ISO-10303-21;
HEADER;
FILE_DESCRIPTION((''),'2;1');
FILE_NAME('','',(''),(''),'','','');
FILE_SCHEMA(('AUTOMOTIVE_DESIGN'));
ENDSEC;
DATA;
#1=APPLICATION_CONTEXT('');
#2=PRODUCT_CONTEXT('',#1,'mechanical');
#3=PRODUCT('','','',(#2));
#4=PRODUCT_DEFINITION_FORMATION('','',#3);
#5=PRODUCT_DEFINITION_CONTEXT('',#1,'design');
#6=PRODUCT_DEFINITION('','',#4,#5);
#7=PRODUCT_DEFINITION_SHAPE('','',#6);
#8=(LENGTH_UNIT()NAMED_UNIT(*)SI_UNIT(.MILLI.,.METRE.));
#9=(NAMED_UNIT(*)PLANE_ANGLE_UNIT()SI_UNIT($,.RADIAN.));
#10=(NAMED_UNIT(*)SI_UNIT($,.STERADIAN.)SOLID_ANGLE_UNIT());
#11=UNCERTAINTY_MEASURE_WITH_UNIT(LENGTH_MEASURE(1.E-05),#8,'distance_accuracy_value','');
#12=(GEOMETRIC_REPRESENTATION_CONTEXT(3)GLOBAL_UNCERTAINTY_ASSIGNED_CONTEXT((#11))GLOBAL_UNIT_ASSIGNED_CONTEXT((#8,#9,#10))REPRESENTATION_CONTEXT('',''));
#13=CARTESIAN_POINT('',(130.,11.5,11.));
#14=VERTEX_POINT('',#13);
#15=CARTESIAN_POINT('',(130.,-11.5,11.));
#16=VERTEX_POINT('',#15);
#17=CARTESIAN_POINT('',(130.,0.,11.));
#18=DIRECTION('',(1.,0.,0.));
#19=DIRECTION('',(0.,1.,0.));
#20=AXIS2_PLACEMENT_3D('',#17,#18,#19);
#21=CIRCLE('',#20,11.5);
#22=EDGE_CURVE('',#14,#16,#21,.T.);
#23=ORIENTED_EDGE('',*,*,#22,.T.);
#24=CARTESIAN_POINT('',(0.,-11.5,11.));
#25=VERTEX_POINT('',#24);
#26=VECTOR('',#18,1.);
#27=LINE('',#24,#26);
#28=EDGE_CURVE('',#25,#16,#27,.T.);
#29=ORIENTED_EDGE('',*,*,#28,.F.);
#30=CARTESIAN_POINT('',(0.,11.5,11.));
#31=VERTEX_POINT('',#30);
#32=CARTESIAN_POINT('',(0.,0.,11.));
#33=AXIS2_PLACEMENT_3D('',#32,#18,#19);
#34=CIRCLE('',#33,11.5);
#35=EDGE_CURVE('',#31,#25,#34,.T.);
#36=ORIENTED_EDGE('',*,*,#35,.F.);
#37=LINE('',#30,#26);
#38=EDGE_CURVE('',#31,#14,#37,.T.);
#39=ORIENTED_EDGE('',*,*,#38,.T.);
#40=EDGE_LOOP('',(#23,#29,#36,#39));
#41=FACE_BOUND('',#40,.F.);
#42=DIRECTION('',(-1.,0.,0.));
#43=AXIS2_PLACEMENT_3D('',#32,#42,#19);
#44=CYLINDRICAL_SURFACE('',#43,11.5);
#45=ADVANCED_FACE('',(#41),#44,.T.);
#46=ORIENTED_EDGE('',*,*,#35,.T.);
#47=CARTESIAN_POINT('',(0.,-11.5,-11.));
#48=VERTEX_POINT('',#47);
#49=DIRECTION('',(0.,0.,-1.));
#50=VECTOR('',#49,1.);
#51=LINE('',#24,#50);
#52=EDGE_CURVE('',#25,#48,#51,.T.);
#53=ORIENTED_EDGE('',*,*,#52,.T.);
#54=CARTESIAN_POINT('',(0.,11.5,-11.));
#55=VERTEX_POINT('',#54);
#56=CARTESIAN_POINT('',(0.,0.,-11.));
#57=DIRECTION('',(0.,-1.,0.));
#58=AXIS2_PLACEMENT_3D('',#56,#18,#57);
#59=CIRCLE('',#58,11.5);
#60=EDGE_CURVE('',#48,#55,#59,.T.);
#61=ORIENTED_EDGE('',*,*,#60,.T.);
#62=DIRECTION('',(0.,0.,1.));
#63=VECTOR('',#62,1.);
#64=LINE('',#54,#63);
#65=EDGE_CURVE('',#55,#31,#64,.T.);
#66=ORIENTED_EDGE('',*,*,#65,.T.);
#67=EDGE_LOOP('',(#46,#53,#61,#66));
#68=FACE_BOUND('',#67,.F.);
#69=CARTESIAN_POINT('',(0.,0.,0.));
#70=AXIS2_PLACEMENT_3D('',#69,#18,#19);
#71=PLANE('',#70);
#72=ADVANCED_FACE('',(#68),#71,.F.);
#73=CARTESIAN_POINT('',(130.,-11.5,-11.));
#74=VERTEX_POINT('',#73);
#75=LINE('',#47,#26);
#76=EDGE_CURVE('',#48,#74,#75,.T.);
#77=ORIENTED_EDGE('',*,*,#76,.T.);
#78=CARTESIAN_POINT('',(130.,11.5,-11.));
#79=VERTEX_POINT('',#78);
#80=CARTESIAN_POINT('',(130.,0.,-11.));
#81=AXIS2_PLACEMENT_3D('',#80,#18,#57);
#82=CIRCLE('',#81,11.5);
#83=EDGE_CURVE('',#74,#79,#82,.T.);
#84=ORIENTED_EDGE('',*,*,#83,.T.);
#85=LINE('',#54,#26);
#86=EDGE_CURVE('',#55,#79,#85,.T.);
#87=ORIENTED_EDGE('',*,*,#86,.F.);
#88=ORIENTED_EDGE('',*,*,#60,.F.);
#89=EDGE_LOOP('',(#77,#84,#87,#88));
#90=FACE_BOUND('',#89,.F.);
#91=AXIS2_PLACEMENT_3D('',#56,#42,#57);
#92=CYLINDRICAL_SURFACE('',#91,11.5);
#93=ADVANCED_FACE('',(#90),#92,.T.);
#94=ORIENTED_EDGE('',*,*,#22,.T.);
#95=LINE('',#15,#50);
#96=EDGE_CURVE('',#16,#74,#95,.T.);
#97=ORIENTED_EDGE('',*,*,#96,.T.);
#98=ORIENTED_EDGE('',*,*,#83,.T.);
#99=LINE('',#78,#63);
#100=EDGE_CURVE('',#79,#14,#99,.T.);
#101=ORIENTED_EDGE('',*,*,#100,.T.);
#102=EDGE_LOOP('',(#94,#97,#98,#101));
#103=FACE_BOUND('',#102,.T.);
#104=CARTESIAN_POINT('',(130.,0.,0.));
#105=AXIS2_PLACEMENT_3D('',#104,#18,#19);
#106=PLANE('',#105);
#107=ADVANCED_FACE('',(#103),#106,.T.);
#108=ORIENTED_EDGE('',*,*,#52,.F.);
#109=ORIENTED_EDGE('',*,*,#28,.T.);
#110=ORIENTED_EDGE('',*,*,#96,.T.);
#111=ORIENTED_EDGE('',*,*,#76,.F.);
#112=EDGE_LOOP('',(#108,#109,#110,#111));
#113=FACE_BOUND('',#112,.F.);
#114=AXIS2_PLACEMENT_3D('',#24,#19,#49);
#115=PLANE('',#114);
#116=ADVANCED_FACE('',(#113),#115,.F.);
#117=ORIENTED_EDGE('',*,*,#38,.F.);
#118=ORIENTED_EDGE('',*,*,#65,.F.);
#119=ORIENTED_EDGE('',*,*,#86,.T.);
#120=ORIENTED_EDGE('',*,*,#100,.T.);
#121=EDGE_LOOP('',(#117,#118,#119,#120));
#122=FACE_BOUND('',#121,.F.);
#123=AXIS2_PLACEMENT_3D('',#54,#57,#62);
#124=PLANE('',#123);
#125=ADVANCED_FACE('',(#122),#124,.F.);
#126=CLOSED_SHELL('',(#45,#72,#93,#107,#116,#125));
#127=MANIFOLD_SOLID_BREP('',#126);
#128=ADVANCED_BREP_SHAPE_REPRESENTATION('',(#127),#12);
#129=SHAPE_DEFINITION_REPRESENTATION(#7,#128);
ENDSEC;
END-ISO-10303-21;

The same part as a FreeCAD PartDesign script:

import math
import FreeCAD as App
import Part
import Sketcher

V = App.Vector

doc = App.newDocument("Part")
body = doc.addObject("PartDesign::Body", "Body")

# Sketch on YZ plane
sketch1 = body.newObject("Sketcher::SketchObject", "Sketch")
sketch1.AttachmentSupport = (doc.getObject("YZ_Plane"), [""])
sketch1.MapMode = "FlatFace"
sketch1.addGeometry(Part.ArcOfCircle(Part.Circle(V(0, 11, 0), V(0, 0, 1), 12), math.radians(0), math.radians(180)), False)
sketch1.addGeometry(Part.LineSegment(V(-12, 11, 0), V(-12, -11, 0)), False)
sketch1.addGeometry(Part.ArcOfCircle(Part.Circle(V(0, -11, 0), V(0, 0, 1), 12), math.radians(180), math.radians(360)), False)
sketch1.addGeometry(Part.LineSegment(V(12, -11, 0), V(12, 11, 0)), False)
sketch1.addConstraint(Sketcher.Constraint("Tangent", 0, 2, 1, 1))
sketch1.addConstraint(Sketcher.Constraint("Tangent", 1, 2, 2, 1))
sketch1.addConstraint(Sketcher.Constraint("Tangent", 2, 2, 3, 1))
sketch1.addConstraint(Sketcher.Constraint("Tangent", 3, 2, 0, 1))
sketch1.addConstraint(Sketcher.Constraint("Vertical", 1))
sketch1.addConstraint(Sketcher.Constraint("Vertical", 3))
sketch1.addConstraint(Sketcher.Constraint("Symmetric", 0, 3, 2, 3, -1, 1))
sketch1.addConstraint(Sketcher.Constraint("Radius", 0, 11.5))
sketch1.addConstraint(Sketcher.Constraint("DistanceY", 1, 2, 1, 1, 22.0))
pad1 = body.newObject("PartDesign::Pad", "Pad")
pad1.Profile = sketch1
pad1.Length = 130

doc.recompute()
